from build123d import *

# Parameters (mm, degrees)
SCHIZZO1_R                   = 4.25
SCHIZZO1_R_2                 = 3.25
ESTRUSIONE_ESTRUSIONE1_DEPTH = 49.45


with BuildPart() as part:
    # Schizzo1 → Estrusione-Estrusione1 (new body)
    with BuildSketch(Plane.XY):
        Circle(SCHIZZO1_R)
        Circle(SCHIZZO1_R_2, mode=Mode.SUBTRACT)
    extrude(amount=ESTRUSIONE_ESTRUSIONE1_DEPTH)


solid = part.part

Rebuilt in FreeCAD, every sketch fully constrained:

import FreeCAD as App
import Part
import Sketcher

V = App.Vector

doc = App.newDocument("Part")
body = doc.addObject("PartDesign::Body", "Body")

# Sketch on XY plane
sketch1 = doc.addObject("Sketcher::SketchObject", "Sketch")
body.addObject(sketch1)
sketch1.AttachmentSupport = (doc.XY_Plane, [""])
sketch1.MapMode = "FlatFace"
sketch1.addGeometry(Part.Circle(V(0, 0, 0), V(0, 0, 1), 4.2), False)
sketch1.addGeometry(Part.Circle(V(0, 0, 0), V(0, 0, 1), 3.2), False)
sketch1.addConstraint(Sketcher.Constraint("Coincident", 0, 3, -1, 1))
sketch1.addConstraint(Sketcher.Constraint("Coincident", 1, 3, -1, 1))
sketch1.addConstraint(Sketcher.Constraint("Diameter", 0, 8.5))
sketch1.addConstraint(Sketcher.Constraint("Diameter", 1, 6.5))
pad1 = doc.addObject("PartDesign::Pad", "Pad")
body.addObject(pad1)
pad1.Profile = sketch1
pad1.Length = 49.45

doc.recompute()
